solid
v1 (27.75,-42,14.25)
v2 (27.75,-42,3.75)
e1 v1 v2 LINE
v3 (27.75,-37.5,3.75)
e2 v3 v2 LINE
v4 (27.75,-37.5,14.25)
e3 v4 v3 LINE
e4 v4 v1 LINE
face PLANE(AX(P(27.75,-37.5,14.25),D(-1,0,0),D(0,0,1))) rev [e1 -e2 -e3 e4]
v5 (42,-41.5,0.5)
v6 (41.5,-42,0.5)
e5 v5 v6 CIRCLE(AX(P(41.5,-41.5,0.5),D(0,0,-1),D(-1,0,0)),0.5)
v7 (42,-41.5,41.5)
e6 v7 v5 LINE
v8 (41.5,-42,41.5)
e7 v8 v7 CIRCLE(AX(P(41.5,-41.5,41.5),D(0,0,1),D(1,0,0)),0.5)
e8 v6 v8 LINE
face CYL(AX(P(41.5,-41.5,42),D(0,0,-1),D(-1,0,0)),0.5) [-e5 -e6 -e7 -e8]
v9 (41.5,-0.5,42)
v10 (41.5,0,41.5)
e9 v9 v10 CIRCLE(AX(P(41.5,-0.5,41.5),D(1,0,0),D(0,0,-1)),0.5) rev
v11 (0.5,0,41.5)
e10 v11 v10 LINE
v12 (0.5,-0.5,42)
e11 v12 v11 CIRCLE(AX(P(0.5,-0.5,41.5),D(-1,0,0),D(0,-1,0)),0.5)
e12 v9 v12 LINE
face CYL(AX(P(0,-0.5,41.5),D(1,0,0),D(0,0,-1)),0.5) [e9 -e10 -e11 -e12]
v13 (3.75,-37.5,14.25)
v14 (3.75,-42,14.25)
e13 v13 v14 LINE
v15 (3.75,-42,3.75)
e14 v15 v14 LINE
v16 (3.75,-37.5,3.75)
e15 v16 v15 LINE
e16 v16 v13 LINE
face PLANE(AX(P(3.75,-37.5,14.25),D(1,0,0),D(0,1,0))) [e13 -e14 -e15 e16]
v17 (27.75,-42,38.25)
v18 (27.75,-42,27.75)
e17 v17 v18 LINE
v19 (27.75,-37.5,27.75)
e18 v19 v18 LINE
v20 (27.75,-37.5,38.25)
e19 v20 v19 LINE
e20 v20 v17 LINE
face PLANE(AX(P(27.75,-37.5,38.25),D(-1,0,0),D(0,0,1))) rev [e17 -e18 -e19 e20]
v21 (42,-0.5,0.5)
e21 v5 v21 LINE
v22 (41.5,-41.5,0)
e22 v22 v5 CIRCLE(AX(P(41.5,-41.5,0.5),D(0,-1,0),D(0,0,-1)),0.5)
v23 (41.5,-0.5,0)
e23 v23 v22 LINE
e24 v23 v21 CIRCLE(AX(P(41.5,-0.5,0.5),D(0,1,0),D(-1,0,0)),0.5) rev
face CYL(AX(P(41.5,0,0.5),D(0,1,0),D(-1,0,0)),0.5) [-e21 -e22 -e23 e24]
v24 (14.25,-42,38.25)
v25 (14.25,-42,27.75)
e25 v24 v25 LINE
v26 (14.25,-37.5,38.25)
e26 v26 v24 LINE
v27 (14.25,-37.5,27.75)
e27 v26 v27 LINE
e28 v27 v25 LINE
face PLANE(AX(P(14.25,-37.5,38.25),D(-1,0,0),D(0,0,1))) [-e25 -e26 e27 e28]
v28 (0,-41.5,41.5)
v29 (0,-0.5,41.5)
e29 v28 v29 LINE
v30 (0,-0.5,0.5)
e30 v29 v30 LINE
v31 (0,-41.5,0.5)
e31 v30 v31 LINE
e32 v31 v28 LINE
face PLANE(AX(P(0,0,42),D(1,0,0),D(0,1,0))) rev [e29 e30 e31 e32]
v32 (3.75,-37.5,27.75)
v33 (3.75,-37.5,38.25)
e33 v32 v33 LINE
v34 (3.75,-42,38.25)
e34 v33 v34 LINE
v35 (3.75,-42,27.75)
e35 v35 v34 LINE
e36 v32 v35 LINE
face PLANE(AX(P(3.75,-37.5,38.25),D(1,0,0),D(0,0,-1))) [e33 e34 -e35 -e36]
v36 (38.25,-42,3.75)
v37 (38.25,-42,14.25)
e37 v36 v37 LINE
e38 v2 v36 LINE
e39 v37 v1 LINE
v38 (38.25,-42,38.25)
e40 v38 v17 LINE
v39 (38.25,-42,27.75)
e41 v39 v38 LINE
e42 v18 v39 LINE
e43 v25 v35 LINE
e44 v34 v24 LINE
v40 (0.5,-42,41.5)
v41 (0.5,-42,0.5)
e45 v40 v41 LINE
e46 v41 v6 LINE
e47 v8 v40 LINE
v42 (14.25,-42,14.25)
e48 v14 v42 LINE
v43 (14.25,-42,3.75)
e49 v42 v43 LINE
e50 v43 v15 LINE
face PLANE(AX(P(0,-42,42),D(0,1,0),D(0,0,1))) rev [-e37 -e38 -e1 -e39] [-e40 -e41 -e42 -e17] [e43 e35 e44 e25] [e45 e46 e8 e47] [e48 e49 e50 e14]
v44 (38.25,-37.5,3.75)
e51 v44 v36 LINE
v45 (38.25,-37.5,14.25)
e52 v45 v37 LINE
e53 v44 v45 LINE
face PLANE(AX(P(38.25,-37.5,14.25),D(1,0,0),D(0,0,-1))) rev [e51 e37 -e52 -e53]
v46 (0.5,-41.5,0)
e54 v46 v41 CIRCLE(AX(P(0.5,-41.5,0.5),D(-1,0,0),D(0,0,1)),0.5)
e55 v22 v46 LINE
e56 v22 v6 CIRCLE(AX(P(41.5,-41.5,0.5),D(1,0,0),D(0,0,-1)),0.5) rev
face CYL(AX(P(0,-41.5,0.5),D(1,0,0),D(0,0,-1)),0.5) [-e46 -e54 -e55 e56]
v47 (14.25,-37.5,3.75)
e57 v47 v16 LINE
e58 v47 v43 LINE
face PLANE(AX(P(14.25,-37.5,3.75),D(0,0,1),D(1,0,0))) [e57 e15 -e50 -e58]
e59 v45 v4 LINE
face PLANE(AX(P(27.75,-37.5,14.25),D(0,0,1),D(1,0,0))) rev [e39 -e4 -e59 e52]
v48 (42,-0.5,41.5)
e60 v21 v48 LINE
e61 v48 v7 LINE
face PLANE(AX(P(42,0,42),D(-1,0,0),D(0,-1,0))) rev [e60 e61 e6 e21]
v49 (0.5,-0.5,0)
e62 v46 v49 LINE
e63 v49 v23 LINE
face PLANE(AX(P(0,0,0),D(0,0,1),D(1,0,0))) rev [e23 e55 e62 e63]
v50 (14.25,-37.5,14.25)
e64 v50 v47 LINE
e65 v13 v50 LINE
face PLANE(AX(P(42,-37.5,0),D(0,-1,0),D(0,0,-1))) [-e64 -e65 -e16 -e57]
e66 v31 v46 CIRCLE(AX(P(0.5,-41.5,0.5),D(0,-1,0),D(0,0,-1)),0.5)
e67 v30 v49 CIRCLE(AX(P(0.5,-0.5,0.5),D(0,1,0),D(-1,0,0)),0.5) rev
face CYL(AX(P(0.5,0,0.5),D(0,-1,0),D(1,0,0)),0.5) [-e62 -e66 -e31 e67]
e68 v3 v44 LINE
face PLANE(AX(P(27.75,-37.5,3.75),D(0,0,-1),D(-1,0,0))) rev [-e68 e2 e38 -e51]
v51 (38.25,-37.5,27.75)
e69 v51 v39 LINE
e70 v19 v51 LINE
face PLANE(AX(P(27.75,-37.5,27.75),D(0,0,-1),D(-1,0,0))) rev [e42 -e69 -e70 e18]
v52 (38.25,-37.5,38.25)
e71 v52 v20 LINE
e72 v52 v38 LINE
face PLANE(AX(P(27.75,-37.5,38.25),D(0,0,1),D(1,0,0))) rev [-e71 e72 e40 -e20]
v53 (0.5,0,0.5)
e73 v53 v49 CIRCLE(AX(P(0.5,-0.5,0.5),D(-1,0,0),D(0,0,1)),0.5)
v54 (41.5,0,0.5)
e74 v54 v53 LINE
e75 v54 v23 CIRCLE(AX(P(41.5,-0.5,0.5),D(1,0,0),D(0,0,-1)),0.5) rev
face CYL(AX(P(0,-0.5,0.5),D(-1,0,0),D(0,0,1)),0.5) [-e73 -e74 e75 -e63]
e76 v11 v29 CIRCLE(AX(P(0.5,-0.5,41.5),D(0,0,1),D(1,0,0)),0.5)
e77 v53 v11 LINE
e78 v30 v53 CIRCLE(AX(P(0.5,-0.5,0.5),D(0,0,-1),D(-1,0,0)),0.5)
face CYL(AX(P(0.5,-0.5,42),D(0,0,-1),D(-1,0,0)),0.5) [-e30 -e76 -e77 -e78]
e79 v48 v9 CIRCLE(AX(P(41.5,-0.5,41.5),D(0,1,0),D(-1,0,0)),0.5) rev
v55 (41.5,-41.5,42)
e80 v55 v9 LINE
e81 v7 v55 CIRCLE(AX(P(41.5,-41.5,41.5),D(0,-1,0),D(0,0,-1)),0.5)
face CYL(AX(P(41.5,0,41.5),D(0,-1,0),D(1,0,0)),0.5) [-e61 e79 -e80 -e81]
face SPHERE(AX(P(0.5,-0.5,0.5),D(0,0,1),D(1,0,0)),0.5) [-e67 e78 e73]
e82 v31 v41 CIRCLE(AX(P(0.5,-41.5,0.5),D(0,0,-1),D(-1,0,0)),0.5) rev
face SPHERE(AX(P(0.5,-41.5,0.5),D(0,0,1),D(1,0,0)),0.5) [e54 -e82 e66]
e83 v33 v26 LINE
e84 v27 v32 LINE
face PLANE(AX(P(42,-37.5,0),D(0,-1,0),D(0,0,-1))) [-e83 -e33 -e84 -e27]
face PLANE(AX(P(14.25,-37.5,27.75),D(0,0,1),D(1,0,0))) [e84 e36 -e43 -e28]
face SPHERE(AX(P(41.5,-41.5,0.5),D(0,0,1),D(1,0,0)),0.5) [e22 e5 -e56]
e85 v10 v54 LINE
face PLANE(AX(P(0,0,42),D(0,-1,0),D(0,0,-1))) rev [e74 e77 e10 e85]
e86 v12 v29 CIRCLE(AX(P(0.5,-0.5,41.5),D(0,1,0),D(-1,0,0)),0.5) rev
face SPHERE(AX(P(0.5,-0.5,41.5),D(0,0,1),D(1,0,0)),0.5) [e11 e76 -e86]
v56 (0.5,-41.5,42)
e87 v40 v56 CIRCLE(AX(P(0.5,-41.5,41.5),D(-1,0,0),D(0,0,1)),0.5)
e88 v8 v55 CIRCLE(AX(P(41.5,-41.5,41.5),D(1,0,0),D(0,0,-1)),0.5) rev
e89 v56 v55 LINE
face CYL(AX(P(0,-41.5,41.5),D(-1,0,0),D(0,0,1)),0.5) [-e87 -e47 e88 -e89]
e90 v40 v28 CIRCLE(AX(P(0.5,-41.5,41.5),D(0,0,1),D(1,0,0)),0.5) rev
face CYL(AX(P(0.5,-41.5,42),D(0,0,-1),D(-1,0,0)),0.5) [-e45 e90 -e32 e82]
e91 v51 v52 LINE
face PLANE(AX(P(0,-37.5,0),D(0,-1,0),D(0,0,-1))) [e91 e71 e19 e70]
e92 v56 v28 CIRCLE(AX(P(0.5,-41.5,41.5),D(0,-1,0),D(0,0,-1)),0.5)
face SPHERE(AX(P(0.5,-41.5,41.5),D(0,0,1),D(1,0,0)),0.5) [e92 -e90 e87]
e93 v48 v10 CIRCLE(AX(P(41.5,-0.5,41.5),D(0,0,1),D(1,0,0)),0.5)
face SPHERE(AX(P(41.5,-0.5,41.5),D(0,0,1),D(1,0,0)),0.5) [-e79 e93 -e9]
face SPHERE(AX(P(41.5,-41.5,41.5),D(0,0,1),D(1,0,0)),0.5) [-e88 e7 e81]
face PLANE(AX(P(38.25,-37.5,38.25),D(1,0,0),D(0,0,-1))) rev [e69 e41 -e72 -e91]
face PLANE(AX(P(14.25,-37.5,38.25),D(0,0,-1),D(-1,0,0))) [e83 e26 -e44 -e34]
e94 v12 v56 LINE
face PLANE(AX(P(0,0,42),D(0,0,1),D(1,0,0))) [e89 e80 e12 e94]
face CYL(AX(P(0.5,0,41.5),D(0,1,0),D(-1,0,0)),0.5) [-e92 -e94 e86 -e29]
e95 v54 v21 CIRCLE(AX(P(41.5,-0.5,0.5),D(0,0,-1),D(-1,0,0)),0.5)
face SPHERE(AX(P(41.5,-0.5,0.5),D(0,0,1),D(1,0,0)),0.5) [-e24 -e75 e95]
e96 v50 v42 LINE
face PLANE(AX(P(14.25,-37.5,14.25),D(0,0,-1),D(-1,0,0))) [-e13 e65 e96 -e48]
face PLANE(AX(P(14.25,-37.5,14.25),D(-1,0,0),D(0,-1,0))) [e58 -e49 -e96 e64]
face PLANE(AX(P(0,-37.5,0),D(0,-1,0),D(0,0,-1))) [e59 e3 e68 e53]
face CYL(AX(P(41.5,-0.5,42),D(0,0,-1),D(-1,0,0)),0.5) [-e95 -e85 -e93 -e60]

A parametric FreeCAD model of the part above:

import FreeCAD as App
import Part
import Sketcher
from FreeCAD import Vector


def edges_at(feature, points):
    """Names of the edges that pass closest to the given points."""
    edges = feature.Shape.Edges
    near = lambda p: min(range(len(edges)), key=lambda i: edges[i].distToShape(Part.Vertex(*p))[0])
    return sorted({f"Edge{near(p) + 1}" for p in points})

doc = App.newDocument("Part")
params = doc.addObject("Spreadsheet::Sheet", "Params")
for row, (alias, value) in enumerate([
    ("sketch1_width", "42 mm"),
    ("pad1_length", "42 mm"),
    ("sketch2_width", "10.5 mm"),
    ("pocket1_length", "4.5 mm"),
    ("fillet_radius", "0.5 mm"),
], start=1):
    params.set(f"A{row}", alias)
    params.set(f"B{row}", "=" + value)
    params.setAlias(f"B{row}", alias)

body = doc.addObject("PartDesign::Body", "Body")

# Sketch on XY plane
sketch1 = body.newObject("Sketcher::SketchObject", "Sketch")
sketch1.AttachmentSupport = (doc.getObject("XY_Plane"), [""])
sketch1.MapMode = "FlatFace"
sketch1.addGeometry([
    Part.LineSegment(Vector(0, 0, 0), Vector(0, -42, 0)),
    Part.LineSegment(Vector(0, -42, 0), Vector(42, -42, 0)),
    Part.LineSegment(Vector(42, -42, 0), Vector(42, 0, 0)),
    Part.LineSegment(Vector(42, 0, 0), Vector(0, 0, 0)),
], False)
sketch1.addConstraint([
    Sketcher.Constraint("Coincident", 0, 2, 1, 1),
    Sketcher.Constraint("Coincident", 1, 2, 2, 1),
    Sketcher.Constraint("Coincident", 2, 2, 3, 1),
    Sketcher.Constraint("Coincident", 3, 2, 0, 1),
    Sketcher.Constraint("Vertical", 0),
    Sketcher.Constraint("Horizontal", 1),
    Sketcher.Constraint("Vertical", 2),
    Sketcher.Constraint("Horizontal", 3),
    Sketcher.Constraint("Coincident", 3, 2, -1, 1),
    Sketcher.Constraint("Equal", 3, 0),
    Sketcher.Constraint("DistanceX", 1, 1, 1, 2, 42.0),
])
sketch1.setExpression("Constraints[10]", "Params.sketch1_width")
pad1 = body.newObject("PartDesign::Pad", "Pad")
pad1.Profile = sketch1
pad1.setExpression("Length", "Params.pad1_length")

# Sketch on XZ plane
sketch2 = body.newObject("Sketcher::SketchObject", "Sketch001")
sketch2.AttachmentSupport = (doc.getObject("XZ_Plane"), [""])
sketch2.MapMode = "FlatFace"
sketch2.AttachmentOffset = App.Placement(Vector(0, 0, 42), App.Rotation())
sketch2.addGeometry([
    Part.LineSegment(Vector(27.75, 38.25, 0), Vector(27.75, 27.75, 0)),  # 0
    Part.LineSegment(Vector(27.75, 27.75, 0), Vector(38.25, 27.75, 0)),  # 1
    Part.LineSegment(Vector(38.25, 27.75, 0), Vector(38.25, 38.25, 0)),  # 2
    Part.LineSegment(Vector(38.25, 38.25, 0), Vector(27.75, 38.25, 0)),  # 3
    Part.LineSegment(Vector(27.75, 14.25, 0), Vector(27.75, 3.75, 0)),  # 4
    Part.LineSegment(Vector(27.75, 3.75, 0), Vector(38.25, 3.75, 0)),  # 5
    Part.LineSegment(Vector(38.25, 3.75, 0), Vector(38.25, 14.25, 0)),  # 6
    Part.LineSegment(Vector(38.25, 14.25, 0), Vector(27.75, 14.25, 0)),  # 7
], False)
sketch2.addConstraint([
    Sketcher.Constraint("Coincident", 0, 2, 1, 1),
    Sketcher.Constraint("Coincident", 1, 2, 2, 1),
    Sketcher.Constraint("Coincident", 2, 2, 3, 1),
    Sketcher.Constraint("Coincident", 3, 2, 0, 1),
    Sketcher.Constraint("Coincident", 4, 2, 5, 1),
    Sketcher.Constraint("Coincident", 5, 2, 6, 1),
    Sketcher.Constraint("Coincident", 6, 2, 7, 1),
    Sketcher.Constraint("Coincident", 7, 2, 4, 1),
    Sketcher.Constraint("Vertical", 0),
    Sketcher.Constraint("Horizontal", 1),
    Sketcher.Constraint("Vertical", 2),
    Sketcher.Constraint("Horizontal", 3),
    Sketcher.Constraint("Vertical", 4),
    Sketcher.Constraint("Horizontal", 5),
    Sketcher.Constraint("Vertical", 6),
    Sketcher.Constraint("Horizontal", 7),
    Sketcher.Constraint("Vertical", 3, 2, 4, 2),
    Sketcher.Constraint("Vertical", 2, 2, 5, 2),
    Sketcher.Constraint("Equal", 7, 0),
    Sketcher.Constraint("Equal", 2, 4),
    Sketcher.Constraint("DistanceX", 1, 1, 1, 2, 10.5),
    Sketcher.Constraint("DistanceY", 4, 2, 0, 2, 24.0),
    Sketcher.Constraint("DistanceX", -1, 1, 0, 2, 27.75),
    Sketcher.Constraint("DistanceY", -1, 1, 0, 2, 27.75),
])
sketch2.setExpression("Constraints[20]", "Params.sketch2_width")
pocket1 = body.newObject("PartDesign::Pocket", "Pocket")
pocket1.Profile = sketch2
pocket1.setExpression("Length", "Params.pocket1_length")
doc.recompute()

fillet = body.newObject("PartDesign::Fillet", "Fillet")
fillet.Base = (pocket1, edges_at(pocket1, [
    (42, -21, 42),
    (21, 0, 42),
    (0, -21, 42),
    (21, 0, 0),
    (42, -21, 0),
    (21, -42, 0),
    (0, -21, 0),
    (21, -42, 42),
    (0, 0, 21),
    (42, 0, 21),
    (42, -42, 21),
    (0, -42, 21),
]))
fillet.setExpression("Radius", "Params.fillet_radius")
doc.recompute()

datumplane = body.newObject("PartDesign::Plane", "DatumPlane")
datumplane.AttachmentSupport = (doc.getObject("YZ_Plane"), [""])
datumplane.MapMode = "FlatFace"
datumplane.AttachmentOffset = App.Placement(Vector(0, 0, 21), App.Rotation())
mirrored = body.newObject("PartDesign::Mirrored", "Mirrored")
mirrored.Originals = [pocket1]
mirrored.MirrorPlane = (datumplane, [""])
body.Tip = mirrored

doc.recompute()
